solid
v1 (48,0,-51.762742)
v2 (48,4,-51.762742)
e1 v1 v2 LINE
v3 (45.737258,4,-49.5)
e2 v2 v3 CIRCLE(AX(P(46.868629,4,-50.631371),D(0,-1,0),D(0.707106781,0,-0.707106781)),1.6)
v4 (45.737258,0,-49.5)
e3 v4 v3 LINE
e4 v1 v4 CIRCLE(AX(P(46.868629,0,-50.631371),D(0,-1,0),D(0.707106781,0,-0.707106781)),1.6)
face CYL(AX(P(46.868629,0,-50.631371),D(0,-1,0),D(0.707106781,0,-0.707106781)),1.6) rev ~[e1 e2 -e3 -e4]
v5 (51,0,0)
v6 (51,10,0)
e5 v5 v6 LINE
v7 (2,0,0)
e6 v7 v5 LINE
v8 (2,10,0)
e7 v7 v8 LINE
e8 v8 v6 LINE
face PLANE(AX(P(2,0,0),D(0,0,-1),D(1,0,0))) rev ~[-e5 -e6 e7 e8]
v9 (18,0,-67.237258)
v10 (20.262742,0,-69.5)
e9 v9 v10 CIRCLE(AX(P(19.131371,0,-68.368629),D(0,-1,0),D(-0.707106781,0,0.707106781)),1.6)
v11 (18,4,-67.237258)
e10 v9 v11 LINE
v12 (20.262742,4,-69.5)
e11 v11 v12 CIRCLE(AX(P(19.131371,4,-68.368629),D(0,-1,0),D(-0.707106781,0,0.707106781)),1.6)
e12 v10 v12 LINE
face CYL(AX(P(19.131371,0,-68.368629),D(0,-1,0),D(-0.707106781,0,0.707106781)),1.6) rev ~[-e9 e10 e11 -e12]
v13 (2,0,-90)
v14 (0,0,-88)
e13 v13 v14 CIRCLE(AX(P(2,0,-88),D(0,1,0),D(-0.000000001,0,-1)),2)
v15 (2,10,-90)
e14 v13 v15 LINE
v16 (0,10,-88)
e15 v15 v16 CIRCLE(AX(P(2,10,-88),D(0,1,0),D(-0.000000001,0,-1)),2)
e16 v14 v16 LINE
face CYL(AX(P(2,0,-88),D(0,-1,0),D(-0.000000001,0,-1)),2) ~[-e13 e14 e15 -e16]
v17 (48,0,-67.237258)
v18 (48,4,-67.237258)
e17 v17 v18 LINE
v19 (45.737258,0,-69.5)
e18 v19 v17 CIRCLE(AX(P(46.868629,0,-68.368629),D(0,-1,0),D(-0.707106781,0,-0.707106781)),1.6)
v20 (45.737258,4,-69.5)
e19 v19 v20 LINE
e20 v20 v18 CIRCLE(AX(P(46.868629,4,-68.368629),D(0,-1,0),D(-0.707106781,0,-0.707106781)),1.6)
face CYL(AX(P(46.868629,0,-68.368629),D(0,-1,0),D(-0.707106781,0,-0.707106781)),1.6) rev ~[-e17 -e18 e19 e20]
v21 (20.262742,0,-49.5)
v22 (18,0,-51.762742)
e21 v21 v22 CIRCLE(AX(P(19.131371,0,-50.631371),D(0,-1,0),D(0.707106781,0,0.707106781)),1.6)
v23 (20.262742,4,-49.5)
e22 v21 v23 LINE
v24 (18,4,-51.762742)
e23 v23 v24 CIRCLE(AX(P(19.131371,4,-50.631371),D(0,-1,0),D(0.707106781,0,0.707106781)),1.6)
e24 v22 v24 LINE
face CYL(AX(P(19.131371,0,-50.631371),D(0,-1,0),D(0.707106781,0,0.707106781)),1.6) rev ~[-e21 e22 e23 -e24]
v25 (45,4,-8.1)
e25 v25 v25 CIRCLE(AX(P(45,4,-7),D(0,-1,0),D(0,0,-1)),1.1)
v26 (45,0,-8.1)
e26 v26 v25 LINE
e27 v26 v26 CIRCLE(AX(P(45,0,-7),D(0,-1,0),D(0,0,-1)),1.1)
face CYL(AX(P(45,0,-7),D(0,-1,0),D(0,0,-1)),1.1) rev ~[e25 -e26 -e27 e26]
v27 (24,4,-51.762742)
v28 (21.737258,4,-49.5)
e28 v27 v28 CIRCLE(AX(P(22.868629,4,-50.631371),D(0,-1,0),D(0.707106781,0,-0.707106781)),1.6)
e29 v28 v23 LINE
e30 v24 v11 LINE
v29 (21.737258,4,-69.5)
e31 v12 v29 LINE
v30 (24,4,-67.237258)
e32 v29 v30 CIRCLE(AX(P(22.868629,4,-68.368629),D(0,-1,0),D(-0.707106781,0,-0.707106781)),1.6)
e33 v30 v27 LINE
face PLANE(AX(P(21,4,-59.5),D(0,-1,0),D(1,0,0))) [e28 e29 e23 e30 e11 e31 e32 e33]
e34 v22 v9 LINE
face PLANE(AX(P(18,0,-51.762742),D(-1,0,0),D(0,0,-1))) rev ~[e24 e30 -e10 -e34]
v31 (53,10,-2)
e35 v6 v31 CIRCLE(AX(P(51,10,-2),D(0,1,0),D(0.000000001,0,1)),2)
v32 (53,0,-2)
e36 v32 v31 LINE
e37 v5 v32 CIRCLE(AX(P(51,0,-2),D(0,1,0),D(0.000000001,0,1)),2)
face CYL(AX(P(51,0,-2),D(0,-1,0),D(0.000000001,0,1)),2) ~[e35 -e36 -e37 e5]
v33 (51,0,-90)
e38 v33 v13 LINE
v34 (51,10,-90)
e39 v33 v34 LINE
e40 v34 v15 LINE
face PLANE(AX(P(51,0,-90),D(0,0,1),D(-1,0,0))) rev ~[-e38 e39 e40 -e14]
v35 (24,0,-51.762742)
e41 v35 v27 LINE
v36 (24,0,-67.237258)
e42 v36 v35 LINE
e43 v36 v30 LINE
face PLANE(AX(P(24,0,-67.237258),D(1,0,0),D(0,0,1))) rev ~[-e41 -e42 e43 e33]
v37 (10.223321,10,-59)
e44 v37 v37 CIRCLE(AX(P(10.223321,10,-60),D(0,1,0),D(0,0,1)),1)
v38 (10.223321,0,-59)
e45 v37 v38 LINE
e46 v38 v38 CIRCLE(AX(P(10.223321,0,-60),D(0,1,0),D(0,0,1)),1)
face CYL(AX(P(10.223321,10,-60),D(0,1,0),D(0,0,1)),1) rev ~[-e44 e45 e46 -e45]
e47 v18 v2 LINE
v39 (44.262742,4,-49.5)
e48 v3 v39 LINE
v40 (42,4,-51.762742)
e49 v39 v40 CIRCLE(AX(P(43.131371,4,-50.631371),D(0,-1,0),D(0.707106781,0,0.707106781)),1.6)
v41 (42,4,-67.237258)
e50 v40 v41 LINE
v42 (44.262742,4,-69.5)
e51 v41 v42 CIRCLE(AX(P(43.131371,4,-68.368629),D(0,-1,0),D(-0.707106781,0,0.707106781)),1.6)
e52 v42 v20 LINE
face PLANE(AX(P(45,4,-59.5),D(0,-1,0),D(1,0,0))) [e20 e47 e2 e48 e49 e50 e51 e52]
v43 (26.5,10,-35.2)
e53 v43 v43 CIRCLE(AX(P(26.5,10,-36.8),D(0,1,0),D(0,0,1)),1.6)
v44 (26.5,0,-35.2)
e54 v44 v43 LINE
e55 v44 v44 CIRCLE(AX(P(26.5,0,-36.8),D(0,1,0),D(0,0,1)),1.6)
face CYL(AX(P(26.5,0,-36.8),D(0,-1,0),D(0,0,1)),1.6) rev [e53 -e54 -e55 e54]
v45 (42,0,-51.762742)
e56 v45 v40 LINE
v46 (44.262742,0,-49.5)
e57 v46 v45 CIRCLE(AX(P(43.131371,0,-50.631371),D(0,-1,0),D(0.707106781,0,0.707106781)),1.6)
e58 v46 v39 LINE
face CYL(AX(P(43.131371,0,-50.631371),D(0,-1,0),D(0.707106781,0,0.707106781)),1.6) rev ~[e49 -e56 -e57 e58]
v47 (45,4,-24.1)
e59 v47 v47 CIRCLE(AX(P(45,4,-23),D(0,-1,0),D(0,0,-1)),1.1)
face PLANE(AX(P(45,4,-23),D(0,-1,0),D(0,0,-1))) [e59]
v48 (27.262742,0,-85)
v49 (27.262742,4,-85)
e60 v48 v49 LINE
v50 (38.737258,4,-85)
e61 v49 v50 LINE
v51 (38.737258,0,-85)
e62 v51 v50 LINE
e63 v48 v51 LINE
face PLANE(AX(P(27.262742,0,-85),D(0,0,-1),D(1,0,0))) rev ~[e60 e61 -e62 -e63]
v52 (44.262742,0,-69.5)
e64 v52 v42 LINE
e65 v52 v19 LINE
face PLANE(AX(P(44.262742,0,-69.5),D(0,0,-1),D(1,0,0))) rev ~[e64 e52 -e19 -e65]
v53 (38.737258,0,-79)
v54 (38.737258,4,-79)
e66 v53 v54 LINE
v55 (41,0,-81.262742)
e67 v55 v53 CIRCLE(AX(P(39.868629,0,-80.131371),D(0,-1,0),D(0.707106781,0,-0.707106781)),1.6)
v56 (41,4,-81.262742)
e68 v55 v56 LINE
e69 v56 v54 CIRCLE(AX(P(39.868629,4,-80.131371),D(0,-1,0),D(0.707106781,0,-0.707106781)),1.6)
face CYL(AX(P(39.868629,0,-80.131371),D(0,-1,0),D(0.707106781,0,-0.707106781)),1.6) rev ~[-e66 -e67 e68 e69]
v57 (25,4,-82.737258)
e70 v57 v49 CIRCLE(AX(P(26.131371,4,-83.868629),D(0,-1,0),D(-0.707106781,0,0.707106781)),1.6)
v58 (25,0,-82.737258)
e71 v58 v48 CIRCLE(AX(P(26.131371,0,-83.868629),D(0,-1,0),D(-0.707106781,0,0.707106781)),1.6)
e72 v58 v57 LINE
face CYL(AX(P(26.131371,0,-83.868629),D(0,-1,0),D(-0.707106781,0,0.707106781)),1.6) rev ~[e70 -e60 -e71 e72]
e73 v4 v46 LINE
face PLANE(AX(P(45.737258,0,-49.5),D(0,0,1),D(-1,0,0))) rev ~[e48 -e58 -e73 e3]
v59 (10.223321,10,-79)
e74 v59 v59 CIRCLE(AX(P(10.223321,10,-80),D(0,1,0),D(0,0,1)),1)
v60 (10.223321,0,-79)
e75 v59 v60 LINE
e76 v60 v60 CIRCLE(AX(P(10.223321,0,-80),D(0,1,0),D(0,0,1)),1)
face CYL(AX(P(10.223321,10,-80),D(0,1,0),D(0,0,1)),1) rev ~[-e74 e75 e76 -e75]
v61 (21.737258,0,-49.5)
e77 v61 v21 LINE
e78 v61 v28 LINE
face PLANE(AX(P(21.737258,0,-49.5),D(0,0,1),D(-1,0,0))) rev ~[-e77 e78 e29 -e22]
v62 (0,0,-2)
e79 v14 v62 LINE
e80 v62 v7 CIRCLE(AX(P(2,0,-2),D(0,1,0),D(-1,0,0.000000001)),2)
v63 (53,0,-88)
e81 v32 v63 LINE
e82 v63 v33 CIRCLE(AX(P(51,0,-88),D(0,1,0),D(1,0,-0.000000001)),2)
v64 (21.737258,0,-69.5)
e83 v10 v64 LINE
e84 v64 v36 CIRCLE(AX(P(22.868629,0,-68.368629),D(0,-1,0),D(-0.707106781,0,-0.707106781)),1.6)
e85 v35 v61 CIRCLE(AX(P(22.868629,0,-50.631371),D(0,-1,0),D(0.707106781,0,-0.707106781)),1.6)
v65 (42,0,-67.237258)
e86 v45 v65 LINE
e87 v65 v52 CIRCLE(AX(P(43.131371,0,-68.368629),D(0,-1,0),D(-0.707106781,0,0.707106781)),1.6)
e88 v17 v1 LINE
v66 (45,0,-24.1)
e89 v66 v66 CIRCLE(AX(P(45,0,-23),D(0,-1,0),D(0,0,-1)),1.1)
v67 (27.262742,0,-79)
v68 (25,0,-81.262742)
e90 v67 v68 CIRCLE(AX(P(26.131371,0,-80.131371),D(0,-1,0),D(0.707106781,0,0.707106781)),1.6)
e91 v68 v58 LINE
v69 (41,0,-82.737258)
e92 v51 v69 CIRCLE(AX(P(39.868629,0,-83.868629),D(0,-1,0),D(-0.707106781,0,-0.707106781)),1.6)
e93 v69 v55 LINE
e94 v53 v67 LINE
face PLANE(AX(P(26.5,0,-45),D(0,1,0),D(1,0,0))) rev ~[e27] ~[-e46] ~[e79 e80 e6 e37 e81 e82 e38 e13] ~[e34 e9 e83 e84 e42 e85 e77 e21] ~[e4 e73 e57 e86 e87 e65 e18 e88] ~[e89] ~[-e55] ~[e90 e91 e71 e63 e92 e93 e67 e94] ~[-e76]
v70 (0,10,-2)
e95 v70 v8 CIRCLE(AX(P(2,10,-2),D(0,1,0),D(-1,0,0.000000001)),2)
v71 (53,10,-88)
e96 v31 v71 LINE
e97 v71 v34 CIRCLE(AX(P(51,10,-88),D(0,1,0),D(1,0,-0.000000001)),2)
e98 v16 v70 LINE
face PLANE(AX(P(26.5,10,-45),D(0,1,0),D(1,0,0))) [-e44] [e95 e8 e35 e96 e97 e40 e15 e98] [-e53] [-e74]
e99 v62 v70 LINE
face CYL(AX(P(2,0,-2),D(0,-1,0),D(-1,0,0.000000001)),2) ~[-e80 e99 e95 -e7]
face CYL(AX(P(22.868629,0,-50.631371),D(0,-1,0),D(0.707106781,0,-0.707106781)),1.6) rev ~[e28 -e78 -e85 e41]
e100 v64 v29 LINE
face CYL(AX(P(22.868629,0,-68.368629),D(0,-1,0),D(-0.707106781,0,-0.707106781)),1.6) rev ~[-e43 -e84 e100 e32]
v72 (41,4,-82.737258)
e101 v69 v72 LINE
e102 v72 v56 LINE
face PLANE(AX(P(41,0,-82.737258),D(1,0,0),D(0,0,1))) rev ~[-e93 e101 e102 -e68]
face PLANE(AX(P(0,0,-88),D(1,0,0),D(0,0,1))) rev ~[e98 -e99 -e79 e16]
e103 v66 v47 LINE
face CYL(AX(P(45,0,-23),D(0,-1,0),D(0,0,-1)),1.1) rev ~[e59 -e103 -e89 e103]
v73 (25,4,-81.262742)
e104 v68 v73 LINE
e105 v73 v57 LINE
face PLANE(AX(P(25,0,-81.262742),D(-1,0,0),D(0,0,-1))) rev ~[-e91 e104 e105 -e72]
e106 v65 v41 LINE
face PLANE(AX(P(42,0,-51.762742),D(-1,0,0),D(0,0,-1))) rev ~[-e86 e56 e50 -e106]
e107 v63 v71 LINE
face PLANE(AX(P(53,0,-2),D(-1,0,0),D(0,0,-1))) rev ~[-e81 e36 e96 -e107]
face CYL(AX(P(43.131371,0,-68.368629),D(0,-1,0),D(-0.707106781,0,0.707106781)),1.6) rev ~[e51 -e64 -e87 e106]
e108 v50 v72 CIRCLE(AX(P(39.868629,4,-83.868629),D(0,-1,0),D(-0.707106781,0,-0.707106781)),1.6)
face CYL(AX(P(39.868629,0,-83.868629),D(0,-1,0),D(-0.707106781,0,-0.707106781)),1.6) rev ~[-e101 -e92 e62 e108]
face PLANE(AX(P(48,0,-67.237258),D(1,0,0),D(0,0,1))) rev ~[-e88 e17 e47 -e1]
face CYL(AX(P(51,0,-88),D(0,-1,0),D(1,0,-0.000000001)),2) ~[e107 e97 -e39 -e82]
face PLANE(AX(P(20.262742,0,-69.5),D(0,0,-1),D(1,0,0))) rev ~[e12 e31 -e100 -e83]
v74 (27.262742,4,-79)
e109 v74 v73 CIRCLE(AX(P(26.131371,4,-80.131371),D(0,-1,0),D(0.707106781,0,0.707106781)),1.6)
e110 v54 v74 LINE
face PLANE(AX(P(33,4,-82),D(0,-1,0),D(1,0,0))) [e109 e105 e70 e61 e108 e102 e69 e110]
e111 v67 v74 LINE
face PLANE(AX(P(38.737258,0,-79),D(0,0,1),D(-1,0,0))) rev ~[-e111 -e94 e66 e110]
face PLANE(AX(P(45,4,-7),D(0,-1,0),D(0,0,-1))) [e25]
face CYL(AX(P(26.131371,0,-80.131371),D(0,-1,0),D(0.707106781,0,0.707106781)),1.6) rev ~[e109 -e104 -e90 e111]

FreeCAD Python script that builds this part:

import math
import FreeCAD as App
import Part
import Sketcher
from FreeCAD import Vector

doc = App.newDocument("Part")
body = doc.addObject("PartDesign::Body", "Body")

sketch1 = doc.addObject("Sketcher::SketchObject", "Sketch")
body.addObject(sketch1)
sketch1.AttachmentSupport = (doc.XZ_Plane, [""])
sketch1.MapMode = "FlatFace"
sketch1.addGeometry([
    Part.LineSegment(Vector(0, -88, 0), Vector(0, -2, 0)),
    Part.ArcOfCircle(Part.Circle(Vector(2, -2, 0), Vector(0, 0, 1), 2), math.radians(90), math.radians(180)),
    Part.LineSegment(Vector(2, 0, 0), Vector(51, 0, 0)),
    Part.ArcOfCircle(Part.Circle(Vector(51, -2, 0), Vector(0, 0, 1), 2), math.radians(0), math.radians(90)),
    Part.LineSegment(Vector(53, -2, 0), Vector(53, -88, 0)),
    Part.ArcOfCircle(Part.Circle(Vector(51, -88, 0), Vector(0, 0, 1), 2), math.radians(-90), math.radians(0)),
    Part.LineSegment(Vector(51, -90, 0), Vector(2, -90, 0)),
    Part.ArcOfCircle(Part.Circle(Vector(2, -88, 0), Vector(0, 0, 1), 2), math.radians(-180), math.radians(-90)),
    Part.Circle(Vector(26.5, -36.8, 0), Vector(0, 0, 1), 1.6),
], False)
sketch1.addConstraint([
    Sketcher.Constraint("Tangent", 0, 2, 1, 2),
    Sketcher.Constraint("Tangent", 1, 1, 2, 1),
    Sketcher.Constraint("Tangent", 2, 2, 3, 2),
    Sketcher.Constraint("Tangent", 3, 1, 4, 1),
    Sketcher.Constraint("Tangent", 4, 2, 5, 2),
    Sketcher.Constraint("Tangent", 5, 1, 6, 1),
    Sketcher.Constraint("Tangent", 6, 2, 7, 2),
    Sketcher.Constraint("Tangent", 7, 1, 0, 1),
    Sketcher.Constraint("Vertical", 0),
    Sketcher.Constraint("Horizontal", 2),
    Sketcher.Constraint("Vertical", 4),
    Sketcher.Constraint("Horizontal", 6),
    Sketcher.Constraint("Equal", 1, 3),
    Sketcher.Constraint("Equal", 3, 5),
    Sketcher.Constraint("Equal", 5, 7),
    Sketcher.Constraint("PointOnObject", 0, 2, -2),
    Sketcher.Constraint("PointOnObject", 1, 1, -1),
    Sketcher.Constraint("Radius", 1, 2.0),
    Sketcher.Constraint("Diameter", 8, 3.2),
    Sketcher.Constraint("DistanceX", 2, 1, 2, 2, 49.0),
    Sketcher.Constraint("DistanceY", 0, 1, 0, 2, 86.0),
    Sketcher.Constraint("DistanceX", -1, 1, 8, 3, 26.5),
    Sketcher.Constraint("DistanceY", 8, 3, -1, 1, 36.8),
])
pad1 = doc.addObject("PartDesign::Pad", "Pad")
body.addObject(pad1)
pad1.Profile = sketch1
pad1.Length = 10
pad1.Reversed = True

sketch2 = doc.addObject("Sketcher::SketchObject", "Sketch001")
body.addObject(sketch2)
sketch2.AttachmentSupport = (doc.XZ_Plane, [""])
sketch2.MapMode = "FlatFace"
sketch2.addGeometry([
    Part.Circle(Vector(45, -23, 0), Vector(0, 0, 1), 1.1),
    Part.Circle(Vector(45, -7, 0), Vector(0, 0, 1), 1.1),
    Part.LineSegment(Vector(41, -82.7, 0), Vector(41, -81.3, 0)),
    Part.ArcOfCircle(Part.Circle(Vector(39.9, -80.1, 0), Vector(0, 0, 1), 1.6), math.radians(-45), math.radians(135)),
    Part.LineSegment(Vector(38.7, -79, 0), Vector(27.3, -79, 0)),
    Part.ArcOfCircle(Part.Circle(Vector(26.1, -80.1, 0), Vector(0, 0, 1), 1.6), math.radians(45), math.radians(225)),
    Part.LineSegment(Vector(25, -81.3, 0), Vector(25, -82.7, 0)),
    Part.ArcOfCircle(Part.Circle(Vector(26.1, -83.9, 0), Vector(0, 0, 1), 1.6), math.radians(135), math.radians(315)),
    Part.LineSegment(Vector(27.3, -85, 0), Vector(38.7, -85, 0)),
    Part.ArcOfCircle(Part.Circle(Vector(39.9, -83.9, 0), Vector(0, 0, 1), 1.6), math.radians(-135), math.radians(45)),
    Part.LineSegment(Vector(45.7, -49.5, 0), Vector(44.3, -49.5, 0)),
    Part.ArcOfCircle(Part.Circle(Vector(43.1, -50.6, 0), Vector(0, 0, 1), 1.6), math.radians(45), math.radians(225)),
    Part.LineSegment(Vector(42, -51.8, 0), Vector(42, -67.2, 0)),
    Part.ArcOfCircle(Part.Circle(Vector(43.1, -68.4, 0), Vector(0, 0, 1), 1.6), math.radians(135), math.radians(315)),
    Part.LineSegment(Vector(44.3, -69.5, 0), Vector(45.7, -69.5, 0)),
    Part.ArcOfCircle(Part.Circle(Vector(46.9, -68.4, 0), Vector(0, 0, 1), 1.6), math.radians(-135), math.radians(45)),
    Part.LineSegment(Vector(48, -67.2, 0), Vector(48, -51.8, 0)),
    Part.ArcOfCircle(Part.Circle(Vector(46.9, -50.6, 0), Vector(0, 0, 1), 1.6), math.radians(-45), math.radians(135)),
    Part.LineSegment(Vector(24, -67.2, 0), Vector(24, -51.8, 0)),
    Part.ArcOfCircle(Part.Circle(Vector(22.9, -50.6, 0), Vector(0, 0, 1), 1.6), math.radians(-45), math.radians(135)),
    Part.LineSegment(Vector(21.7, -49.5, 0), Vector(20.3, -49.5, 0)),
    Part.ArcOfCircle(Part.Circle(Vector(19.1, -50.6, 0), Vector(0, 0, 1), 1.6), math.radians(45), math.radians(225)),
    Part.LineSegment(Vector(18, -51.8, 0), Vector(18, -67.2, 0)),
    Part.ArcOfCircle(Part.Circle(Vector(19.1, -68.4, 0), Vector(0, 0, 1), 1.6), math.radians(135), math.radians(315)),
    Part.LineSegment(Vector(20.3, -69.5, 0), Vector(21.7, -69.5, 0)),
    Part.ArcOfCircle(Part.Circle(Vector(22.9, -68.4, 0), Vector(0, 0, 1), 1.6), math.radians(-135), math.radians(45)),
], False)
sketch2.addConstraint([
    Sketcher.Constraint("Coincident", 2, 2, 3, 1),
    Sketcher.Constraint("Coincident", 3, 2, 4, 1),
    Sketcher.Constraint("Coincident", 4, 2, 5, 1),
    Sketcher.Constraint("Coincident", 5, 2, 6, 1),
    Sketcher.Constraint("Coincident", 6, 2, 7, 1),
    Sketcher.Constraint("Coincident", 7, 2, 8, 1),
    Sketcher.Constraint("Coincident", 8, 2, 9, 1),
    Sketcher.Constraint("Coincident", 9, 2, 2, 1),
    Sketcher.Constraint("Coincident", 10, 2, 11, 1),
    Sketcher.Constraint("Coincident", 11, 2, 12, 1),
    Sketcher.Constraint("Coincident", 12, 2, 13, 1),
    Sketcher.Constraint("Coincident", 13, 2, 14, 1),
    Sketcher.Constraint("Coincident", 14, 2, 15, 1),
    Sketcher.Constraint("Coincident", 15, 2, 16, 1),
    Sketcher.Constraint("Coincident", 16, 2, 17, 1),
    Sketcher.Constraint("Coincident", 17, 2, 10, 1),
    Sketcher.Constraint("Coincident", 18, 2, 19, 1),
    Sketcher.Constraint("Coincident", 19, 2, 20, 1),
    Sketcher.Constraint("Coincident", 20, 2, 21, 1),
    Sketcher.Constraint("Coincident", 21, 2, 22, 1),
    Sketcher.Constraint("Coincident", 22, 2, 23, 1),
    Sketcher.Constraint("Coincident", 23, 2, 24, 1),
    Sketcher.Constraint("Coincident", 24, 2, 25, 1),
    Sketcher.Constraint("Coincident", 25, 2, 18, 1),
    Sketcher.Constraint("Vertical", 2),
    Sketcher.Constraint("Horizontal", 4),
    Sketcher.Constraint("Vertical", 6),
    Sketcher.Constraint("Horizontal", 8),
    Sketcher.Constraint("Horizontal", 10),
    Sketcher.Constraint("Vertical", 12),
    Sketcher.Constraint("Horizontal", 14),
    Sketcher.Constraint("Vertical", 16),
    Sketcher.Constraint("Vertical", 18),
    Sketcher.Constraint("Horizontal", 20),
    Sketcher.Constraint("Vertical", 22),
    Sketcher.Constraint("Horizontal", 24),
    Sketcher.Constraint("Equal", 0, 1),
    Sketcher.Constraint("Equal", 3, 5),
    Sketcher.Constraint("Equal", 5, 7),
    Sketcher.Constraint("Equal", 7, 9),
    Sketcher.Constraint("Equal", 9, 11),
    Sketcher.Constraint("Equal", 11, 13),
    Sketcher.Constraint("Equal", 13, 15),
    Sketcher.Constraint("Equal", 15, 17),
    Sketcher.Constraint("Equal", 17, 19),
    Sketcher.Constraint("Equal", 19, 21),
    Sketcher.Constraint("Equal", 21, 23),
    Sketcher.Constraint("Equal", 23, 25),
    Sketcher.Constraint("Horizontal", 3, 3, 5, 3),
    Sketcher.Constraint("Horizontal", 7, 3, 9, 3),
    Sketcher.Constraint("Horizontal", 13, 3, 15, 3),
    Sketcher.Constraint("Horizontal", 11, 3, 17, 3),
    Sketcher.Constraint("Horizontal", 17, 3, 19, 3),
    Sketcher.Constraint("Horizontal", 19, 3, 21, 3),
    Sketcher.Constraint("Horizontal", 15, 3, 23, 3),
    Sketcher.Constraint("Horizontal", 23, 3, 25, 3),
    Sketcher.Constraint("Horizontal", 2, 2, 5, 2),
    Sketcher.Constraint("Horizontal", 6, 2, 9, 2),
    Sketcher.Constraint("Horizontal", 12, 2, 15, 2),
    Sketcher.Constraint("Horizontal", 11, 2, 16, 2),
    Sketcher.Constraint("Horizontal", 16, 2, 18, 2),
    Sketcher.Constraint("Horizontal", 17, 2, 19, 2),
    Sketcher.Constraint("Horizontal", 18, 2, 21, 2),
    Sketcher.Constraint("Horizontal", 15, 2, 22, 2),
    Sketcher.Constraint("Horizontal", 14, 2, 23, 2),
    Sketcher.Constraint("Horizontal", 22, 2, 25, 2),
    Sketcher.Constraint("Vertical", 0, 3, 1, 3),
    Sketcher.Constraint("Vertical", 5, 3, 7, 3),
    Sketcher.Constraint("Vertical", 11, 3, 13, 3),
    Sketcher.Constraint("Vertical", 4, 2, 7, 2),
    Sketcher.Constraint("Vertical", 10, 2, 13, 2),
    Sketcher.Constraint("Equal", 14, 20),
    Sketcher.Constraint("Equal", 24, 2),
    Sketcher.Constraint("Diameter", 0, 2.2),
    Sketcher.Constraint("Radius", 3, 1.6),
    Sketcher.Constraint("DistanceX", -1, 1, 0, 3, 45.0),
    Sketcher.Constraint("DistanceY", 0, 3, -1, 1, 23.0),
    Sketcher.Constraint("DistanceY", 1, 3, -1, 1, 7.0),
    Sketcher.Constraint("DistanceX", -1, 1, 2, 2, 41.0),
    Sketcher.Constraint("DistanceY", 3, 2, -1, 1, 79.0),
    Sketcher.Constraint("DistanceX", -1, 1, 5, 2, 25.0),
    Sketcher.Constraint("DistanceY", 7, 2, -1, 1, 85.0),
    Sketcher.Constraint("DistanceX", -1, 1, 11, 2, 42.0),
    Sketcher.Constraint("DistanceX", -1, 1, 15, 2, 48.0),
    Sketcher.Constraint("DistanceX", -1, 1, 18, 2, 24.0),
    Sketcher.Constraint("DistanceX", 5, 3, 11, 3, 17.0),
    Sketcher.Constraint("DistanceX", 3, 2, 14, 2, 7.0),
    Sketcher.Constraint("DistanceY", 10, 2, -1, 1, 49.5),
    Sketcher.Constraint("DistanceY", 13, 2, -1, 1, 69.5),
    Sketcher.Constraint("DistanceX", -1, 1, 3, 3, 39.868629),
])
pocket1 = doc.addObject("PartDesign::Pocket", "Pocket")
body.addObject(pocket1)
pocket1.Profile = sketch2
pocket1.Length = 4

sketch3 = doc.addObject("Sketcher::SketchObject", "Sketch002")
body.addObject(sketch3)
sketch3.AttachmentSupport = (doc.XZ_Plane, [""])
sketch3.MapMode = "FlatFace"
sketch3.AttachmentOffset = App.Placement(Vector(0, 0, -10), App.Rotation())
sketch3.addGeometry([
    Part.Circle(Vector(10.2, -80, 0), Vector(0, 0, 1), 1),
    Part.Circle(Vector(10.2, -60, 0), Vector(0, 0, 1), 1),
], False)
sketch3.addConstraint([
    Sketcher.Constraint("Equal", 0, 1),
    Sketcher.Constraint("Vertical", 0, 3, 1, 3),
    Sketcher.Constraint("Diameter", 0, 2.0),
    Sketcher.Constraint("DistanceY", 0, 3, -1, 1, 80.0),
    Sketcher.Constraint("DistanceY", 1, 3, -1, 1, 60.0),
    Sketcher.Constraint("DistanceX", -1, 1, 0, 3, 10.223321),
])
pocket2 = doc.addObject("PartDesign::Pocket", "Pocket001")
body.addObject(pocket2)
pocket2.Profile = sketch3
pocket2.Type = "ThroughAll"
pocket2.Reversed = True

doc.recompute()
